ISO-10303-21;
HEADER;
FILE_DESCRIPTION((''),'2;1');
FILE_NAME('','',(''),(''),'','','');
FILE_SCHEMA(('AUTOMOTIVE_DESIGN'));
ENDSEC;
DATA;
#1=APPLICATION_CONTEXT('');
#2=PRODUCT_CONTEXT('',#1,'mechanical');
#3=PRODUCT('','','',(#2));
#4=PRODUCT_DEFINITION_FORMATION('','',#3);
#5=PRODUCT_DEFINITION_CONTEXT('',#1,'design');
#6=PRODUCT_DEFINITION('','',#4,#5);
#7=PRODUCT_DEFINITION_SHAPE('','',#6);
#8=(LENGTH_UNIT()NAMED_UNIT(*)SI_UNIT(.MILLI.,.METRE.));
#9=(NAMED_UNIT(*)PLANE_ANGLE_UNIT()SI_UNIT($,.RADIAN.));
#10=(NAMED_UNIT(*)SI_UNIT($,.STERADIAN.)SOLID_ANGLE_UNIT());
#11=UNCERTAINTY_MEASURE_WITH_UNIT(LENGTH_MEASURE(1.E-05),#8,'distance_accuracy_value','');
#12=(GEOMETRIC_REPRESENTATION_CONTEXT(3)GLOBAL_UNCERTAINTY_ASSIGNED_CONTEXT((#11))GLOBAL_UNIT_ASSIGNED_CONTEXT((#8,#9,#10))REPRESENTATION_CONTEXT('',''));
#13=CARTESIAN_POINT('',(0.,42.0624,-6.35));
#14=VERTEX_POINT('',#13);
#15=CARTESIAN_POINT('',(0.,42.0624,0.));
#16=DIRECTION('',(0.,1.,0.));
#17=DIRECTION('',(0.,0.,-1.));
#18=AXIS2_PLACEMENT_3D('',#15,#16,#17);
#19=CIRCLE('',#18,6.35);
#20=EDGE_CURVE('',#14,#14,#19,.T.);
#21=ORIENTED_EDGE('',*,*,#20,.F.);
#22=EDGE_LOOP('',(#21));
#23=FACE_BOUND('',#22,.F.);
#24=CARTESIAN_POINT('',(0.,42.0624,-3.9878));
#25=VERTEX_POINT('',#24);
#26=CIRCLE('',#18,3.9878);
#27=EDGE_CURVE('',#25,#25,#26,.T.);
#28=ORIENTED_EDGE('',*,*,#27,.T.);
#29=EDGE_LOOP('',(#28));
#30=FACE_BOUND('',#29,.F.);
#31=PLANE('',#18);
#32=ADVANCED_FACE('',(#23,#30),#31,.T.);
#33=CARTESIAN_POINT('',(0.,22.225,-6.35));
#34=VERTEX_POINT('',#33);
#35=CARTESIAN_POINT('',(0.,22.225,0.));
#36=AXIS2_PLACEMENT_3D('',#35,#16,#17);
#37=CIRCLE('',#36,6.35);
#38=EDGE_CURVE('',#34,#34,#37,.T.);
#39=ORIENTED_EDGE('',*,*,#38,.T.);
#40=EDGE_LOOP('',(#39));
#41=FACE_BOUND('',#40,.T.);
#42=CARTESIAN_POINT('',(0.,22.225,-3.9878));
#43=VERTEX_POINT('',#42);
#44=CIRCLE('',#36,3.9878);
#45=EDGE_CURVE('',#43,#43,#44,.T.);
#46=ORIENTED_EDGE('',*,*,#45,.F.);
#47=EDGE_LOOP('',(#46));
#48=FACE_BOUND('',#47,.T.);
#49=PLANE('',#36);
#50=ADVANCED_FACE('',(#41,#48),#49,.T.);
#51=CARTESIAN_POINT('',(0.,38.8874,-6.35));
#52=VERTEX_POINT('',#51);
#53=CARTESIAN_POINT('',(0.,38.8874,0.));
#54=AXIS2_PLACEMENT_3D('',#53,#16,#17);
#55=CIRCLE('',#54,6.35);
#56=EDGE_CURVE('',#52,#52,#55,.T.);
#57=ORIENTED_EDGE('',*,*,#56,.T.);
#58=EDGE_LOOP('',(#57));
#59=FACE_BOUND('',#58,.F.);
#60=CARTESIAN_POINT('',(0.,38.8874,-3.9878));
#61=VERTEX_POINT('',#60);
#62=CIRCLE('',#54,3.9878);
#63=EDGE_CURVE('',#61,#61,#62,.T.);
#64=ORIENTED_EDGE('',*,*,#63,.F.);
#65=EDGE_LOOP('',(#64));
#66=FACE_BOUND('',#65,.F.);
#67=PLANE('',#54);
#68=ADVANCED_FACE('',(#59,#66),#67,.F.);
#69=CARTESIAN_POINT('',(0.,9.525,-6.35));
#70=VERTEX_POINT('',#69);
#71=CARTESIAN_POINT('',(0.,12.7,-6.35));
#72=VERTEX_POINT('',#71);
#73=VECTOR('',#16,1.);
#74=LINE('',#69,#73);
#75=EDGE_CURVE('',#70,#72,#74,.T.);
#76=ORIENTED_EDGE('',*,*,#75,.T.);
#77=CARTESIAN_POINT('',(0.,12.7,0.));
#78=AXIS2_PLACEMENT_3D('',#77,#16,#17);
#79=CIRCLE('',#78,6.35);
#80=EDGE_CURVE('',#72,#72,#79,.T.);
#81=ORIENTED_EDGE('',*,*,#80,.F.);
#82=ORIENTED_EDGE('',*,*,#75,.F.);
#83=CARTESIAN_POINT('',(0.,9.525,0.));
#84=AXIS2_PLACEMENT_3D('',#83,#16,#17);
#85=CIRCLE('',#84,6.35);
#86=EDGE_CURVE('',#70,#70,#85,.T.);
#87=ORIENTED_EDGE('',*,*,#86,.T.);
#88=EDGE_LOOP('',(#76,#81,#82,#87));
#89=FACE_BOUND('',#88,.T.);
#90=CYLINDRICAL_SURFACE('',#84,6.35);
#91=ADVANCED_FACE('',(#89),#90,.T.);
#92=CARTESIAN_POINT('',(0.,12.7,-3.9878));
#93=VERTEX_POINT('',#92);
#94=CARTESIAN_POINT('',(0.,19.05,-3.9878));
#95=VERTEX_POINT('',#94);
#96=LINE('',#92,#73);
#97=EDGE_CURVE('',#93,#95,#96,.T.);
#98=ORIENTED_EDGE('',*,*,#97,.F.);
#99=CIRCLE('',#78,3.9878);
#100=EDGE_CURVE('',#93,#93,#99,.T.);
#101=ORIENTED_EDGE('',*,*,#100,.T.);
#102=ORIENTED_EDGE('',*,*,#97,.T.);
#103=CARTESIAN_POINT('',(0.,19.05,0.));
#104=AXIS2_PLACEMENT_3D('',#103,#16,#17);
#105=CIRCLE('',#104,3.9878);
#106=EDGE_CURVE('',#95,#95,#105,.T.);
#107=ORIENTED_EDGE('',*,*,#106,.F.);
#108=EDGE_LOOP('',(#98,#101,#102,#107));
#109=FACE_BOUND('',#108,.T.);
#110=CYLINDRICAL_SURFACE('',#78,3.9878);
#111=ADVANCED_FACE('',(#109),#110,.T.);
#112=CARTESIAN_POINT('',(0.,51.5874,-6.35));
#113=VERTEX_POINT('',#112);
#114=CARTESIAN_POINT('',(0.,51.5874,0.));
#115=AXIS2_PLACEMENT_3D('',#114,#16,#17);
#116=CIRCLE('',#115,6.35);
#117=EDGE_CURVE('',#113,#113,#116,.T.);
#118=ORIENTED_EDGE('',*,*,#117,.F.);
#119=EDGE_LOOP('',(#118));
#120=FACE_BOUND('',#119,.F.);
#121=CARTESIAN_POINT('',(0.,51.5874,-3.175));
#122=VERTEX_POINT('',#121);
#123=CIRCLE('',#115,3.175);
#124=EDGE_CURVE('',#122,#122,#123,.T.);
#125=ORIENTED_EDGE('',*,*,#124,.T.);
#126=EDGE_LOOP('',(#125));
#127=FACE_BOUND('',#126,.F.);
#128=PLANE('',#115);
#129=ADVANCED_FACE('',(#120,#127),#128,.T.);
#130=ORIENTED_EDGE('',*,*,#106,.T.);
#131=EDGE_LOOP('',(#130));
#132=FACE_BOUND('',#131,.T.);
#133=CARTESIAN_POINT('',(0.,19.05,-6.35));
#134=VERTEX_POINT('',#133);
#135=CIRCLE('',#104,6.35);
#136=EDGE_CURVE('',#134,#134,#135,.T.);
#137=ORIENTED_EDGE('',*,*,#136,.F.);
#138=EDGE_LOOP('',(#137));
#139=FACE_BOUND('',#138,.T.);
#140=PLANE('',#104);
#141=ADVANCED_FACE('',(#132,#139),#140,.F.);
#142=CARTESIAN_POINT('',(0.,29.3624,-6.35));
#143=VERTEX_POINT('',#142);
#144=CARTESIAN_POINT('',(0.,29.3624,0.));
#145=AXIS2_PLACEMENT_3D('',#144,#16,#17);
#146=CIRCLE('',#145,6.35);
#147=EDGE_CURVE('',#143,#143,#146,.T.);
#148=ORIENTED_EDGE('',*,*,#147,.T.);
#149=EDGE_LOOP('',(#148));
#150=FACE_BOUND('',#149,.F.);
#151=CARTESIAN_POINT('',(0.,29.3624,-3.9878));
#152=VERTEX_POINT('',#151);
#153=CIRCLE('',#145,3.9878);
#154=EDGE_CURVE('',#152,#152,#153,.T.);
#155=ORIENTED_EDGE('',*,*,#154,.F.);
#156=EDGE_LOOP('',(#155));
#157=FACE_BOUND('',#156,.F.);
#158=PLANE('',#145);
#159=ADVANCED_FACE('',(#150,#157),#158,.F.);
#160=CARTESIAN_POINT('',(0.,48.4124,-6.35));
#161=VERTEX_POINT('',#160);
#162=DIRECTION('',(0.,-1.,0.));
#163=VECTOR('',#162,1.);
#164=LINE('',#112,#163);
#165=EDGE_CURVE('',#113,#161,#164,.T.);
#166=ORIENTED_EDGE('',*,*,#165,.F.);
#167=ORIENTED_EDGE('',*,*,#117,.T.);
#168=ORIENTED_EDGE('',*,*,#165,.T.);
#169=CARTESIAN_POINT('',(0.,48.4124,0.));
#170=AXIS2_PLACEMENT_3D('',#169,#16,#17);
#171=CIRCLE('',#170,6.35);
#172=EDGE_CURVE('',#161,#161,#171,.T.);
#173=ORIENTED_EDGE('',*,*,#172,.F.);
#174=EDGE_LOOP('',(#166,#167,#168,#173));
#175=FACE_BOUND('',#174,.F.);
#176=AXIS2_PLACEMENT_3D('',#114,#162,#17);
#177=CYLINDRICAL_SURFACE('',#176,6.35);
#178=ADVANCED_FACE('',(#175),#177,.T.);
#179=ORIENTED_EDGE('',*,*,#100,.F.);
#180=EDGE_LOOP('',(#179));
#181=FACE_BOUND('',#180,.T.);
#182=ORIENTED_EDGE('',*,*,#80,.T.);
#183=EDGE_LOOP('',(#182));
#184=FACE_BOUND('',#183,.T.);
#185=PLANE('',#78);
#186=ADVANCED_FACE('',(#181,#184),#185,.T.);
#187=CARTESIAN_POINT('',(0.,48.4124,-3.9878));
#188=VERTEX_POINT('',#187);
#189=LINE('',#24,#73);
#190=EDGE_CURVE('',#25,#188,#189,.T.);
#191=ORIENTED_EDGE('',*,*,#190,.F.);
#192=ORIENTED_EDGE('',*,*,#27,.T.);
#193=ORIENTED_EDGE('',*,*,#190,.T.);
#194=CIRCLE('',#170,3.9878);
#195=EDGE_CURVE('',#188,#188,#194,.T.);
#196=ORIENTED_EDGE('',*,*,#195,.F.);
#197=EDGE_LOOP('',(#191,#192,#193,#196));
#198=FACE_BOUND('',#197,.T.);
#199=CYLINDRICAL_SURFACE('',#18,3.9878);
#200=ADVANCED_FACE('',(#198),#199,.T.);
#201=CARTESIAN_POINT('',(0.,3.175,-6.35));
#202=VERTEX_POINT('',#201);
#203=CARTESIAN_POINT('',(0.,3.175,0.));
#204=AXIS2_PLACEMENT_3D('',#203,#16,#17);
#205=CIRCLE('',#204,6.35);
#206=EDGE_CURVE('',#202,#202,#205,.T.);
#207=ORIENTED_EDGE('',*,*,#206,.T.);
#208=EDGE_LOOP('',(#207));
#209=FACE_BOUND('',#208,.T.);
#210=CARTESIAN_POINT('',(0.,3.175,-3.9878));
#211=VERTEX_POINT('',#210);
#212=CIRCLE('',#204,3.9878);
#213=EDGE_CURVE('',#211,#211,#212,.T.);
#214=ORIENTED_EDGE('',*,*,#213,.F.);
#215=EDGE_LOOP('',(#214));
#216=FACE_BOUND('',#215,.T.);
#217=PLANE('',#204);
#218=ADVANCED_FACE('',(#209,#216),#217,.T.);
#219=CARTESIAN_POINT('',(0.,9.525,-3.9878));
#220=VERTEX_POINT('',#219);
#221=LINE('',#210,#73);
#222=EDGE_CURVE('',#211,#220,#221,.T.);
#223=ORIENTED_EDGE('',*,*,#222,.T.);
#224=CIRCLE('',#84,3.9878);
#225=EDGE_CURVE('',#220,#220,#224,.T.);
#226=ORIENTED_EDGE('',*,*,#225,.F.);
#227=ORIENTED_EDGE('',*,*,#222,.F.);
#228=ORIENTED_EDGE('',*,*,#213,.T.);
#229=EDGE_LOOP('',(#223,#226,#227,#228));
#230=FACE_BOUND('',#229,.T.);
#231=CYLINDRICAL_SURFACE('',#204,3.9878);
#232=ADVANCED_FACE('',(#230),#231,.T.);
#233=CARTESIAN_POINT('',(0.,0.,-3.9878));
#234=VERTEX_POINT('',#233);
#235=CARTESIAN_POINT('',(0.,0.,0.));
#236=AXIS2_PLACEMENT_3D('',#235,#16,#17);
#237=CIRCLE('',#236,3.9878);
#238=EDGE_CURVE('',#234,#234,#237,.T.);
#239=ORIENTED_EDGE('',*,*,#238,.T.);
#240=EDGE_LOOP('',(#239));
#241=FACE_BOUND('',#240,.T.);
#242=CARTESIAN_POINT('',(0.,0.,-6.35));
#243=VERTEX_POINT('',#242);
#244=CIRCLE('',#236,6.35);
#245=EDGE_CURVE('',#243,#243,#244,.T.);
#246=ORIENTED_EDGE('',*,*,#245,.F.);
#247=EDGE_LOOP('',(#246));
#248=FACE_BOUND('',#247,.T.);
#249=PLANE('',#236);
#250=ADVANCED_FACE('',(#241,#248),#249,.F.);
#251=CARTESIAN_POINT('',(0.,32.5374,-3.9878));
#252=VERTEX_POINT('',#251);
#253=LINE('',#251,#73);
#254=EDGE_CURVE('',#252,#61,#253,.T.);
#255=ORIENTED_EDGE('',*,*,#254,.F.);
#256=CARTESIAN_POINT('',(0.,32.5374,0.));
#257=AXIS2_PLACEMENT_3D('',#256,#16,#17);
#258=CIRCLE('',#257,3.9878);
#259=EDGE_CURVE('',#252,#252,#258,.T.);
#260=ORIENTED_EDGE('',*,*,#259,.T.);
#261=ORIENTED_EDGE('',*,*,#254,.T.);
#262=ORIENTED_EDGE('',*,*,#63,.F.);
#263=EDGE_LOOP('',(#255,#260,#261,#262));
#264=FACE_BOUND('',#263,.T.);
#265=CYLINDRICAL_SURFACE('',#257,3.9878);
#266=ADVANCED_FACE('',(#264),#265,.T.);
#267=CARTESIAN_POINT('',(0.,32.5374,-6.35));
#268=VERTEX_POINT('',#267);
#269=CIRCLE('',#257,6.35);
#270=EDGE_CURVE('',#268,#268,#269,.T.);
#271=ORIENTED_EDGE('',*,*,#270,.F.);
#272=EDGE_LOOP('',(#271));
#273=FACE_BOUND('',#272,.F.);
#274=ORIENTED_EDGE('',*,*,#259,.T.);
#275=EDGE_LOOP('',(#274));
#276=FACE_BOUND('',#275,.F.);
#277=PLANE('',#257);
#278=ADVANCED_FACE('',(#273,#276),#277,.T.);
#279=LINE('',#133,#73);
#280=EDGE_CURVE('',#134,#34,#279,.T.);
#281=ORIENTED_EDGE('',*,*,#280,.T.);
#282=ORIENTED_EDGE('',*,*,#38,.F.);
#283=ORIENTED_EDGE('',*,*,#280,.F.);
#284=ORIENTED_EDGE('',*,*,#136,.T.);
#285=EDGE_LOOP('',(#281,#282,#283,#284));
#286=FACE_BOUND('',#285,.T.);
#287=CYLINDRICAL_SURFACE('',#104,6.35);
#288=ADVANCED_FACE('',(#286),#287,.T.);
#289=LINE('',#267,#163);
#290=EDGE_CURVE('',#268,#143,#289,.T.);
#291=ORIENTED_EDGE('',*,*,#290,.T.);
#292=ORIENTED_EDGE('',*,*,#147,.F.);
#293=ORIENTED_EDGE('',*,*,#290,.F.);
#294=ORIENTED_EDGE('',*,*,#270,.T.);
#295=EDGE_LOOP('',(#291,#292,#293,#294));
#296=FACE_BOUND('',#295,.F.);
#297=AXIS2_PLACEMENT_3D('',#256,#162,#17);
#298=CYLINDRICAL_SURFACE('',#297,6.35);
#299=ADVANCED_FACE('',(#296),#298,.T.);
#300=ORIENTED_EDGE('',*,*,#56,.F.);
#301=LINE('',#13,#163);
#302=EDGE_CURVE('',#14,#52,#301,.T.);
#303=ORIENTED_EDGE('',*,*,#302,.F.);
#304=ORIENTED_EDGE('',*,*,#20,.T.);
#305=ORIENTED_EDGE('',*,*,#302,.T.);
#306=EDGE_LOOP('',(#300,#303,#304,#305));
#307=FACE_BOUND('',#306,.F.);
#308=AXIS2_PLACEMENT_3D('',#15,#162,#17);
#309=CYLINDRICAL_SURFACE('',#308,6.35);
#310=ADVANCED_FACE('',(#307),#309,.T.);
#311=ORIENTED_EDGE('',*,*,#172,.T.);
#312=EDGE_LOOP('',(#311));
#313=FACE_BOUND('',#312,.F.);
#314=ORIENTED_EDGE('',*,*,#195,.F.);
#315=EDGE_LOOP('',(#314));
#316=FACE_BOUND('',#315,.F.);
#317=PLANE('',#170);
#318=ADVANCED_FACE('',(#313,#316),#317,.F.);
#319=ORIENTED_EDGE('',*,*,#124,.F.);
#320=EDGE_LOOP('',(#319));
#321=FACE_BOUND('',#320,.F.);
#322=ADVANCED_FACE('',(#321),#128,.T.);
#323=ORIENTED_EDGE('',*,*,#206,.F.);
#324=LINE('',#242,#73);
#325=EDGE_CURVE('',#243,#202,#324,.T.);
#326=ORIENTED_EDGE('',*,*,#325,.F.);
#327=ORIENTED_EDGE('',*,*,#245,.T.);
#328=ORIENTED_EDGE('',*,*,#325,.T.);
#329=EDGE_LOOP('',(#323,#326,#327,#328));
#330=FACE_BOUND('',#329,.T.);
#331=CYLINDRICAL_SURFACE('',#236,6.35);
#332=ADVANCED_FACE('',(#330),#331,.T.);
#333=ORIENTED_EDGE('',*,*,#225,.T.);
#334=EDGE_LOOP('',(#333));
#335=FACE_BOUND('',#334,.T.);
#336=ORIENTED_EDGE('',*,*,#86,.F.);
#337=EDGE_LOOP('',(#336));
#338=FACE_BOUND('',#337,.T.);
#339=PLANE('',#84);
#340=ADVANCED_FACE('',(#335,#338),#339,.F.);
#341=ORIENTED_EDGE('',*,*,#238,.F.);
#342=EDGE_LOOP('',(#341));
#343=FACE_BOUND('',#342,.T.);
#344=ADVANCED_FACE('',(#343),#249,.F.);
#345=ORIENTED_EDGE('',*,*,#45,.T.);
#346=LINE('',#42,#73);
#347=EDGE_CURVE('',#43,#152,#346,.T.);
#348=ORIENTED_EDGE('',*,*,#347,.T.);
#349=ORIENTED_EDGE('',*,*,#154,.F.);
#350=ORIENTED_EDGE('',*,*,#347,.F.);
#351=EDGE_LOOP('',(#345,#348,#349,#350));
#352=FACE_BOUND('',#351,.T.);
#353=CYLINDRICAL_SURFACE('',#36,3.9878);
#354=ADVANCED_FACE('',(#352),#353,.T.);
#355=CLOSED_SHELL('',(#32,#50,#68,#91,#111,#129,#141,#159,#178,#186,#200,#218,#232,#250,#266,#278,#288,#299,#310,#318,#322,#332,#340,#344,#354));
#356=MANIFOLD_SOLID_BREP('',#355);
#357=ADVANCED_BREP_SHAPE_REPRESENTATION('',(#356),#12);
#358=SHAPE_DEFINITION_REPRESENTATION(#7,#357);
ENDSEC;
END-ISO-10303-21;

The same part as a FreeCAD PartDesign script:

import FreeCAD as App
import Part
import Sketcher
Q = App.Units.Quantity


def add_polygon(sketch, points):
    """Adds a closed chain of lines whose ends are joined by coincident constraints."""
    first, n = sketch.GeometryCount, len(points)
    for a, b in zip(points, points[1:] + points[:1]):
        sketch.addGeometry(Part.LineSegment(App.Vector(*a, 0), App.Vector(*b, 0)), False)
    for i in range(n):
        sketch.addConstraint(Sketcher.Constraint("Coincident", first + i, 2, first + (i + 1) % n, 1))

doc = App.newDocument("Part")
body = doc.addObject("PartDesign::Body", "Body")

# Sketch on YZ plane
sketch1 = doc.addObject("Sketcher::SketchObject", "Sketch")
body.addObject(sketch1)
sketch1.AttachmentSupport = (doc.YZ_Plane, [""])
sketch1.MapMode = "FlatFace"
add_polygon(sketch1, [(51.5874, 0), (0, 0), (0, -6.35), (3.175, -6.35), (3.175, -3.9878), (9.525, -3.9878), (9.525, -6.35), (12.7, -6.35), (12.7, -3.9878), (19.05, -3.9878), (19.05, -6.35), (22.225, -6.35), (22.225, -3.9878), (29.3624, -3.9878), (29.3624, -6.35), (32.5374, -6.35), (32.5374, -3.9878), (38.8874, -3.9878), (38.8874, -6.35), (42.0624, -6.35), (42.0624, -3.9878), (48.4124, -3.9878), (48.4124, -6.35), (51.5874, -6.35)])  # lines 0-23
sketch1.addConstraint([
    Sketcher.Constraint("Horizontal", 0),
    Sketcher.Constraint("Vertical", 1),
    Sketcher.Constraint("Horizontal", 2),
    Sketcher.Constraint("Vertical", 3),
    Sketcher.Constraint("Horizontal", 4),
    Sketcher.Constraint("Vertical", 5),
    Sketcher.Constraint("Horizontal", 6),
    Sketcher.Constraint("Vertical", 7),
    Sketcher.Constraint("Horizontal", 8),
    Sketcher.Constraint("Vertical", 9),
    Sketcher.Constraint("Horizontal", 10),
    Sketcher.Constraint("Vertical", 11),
    Sketcher.Constraint("Horizontal", 12),
    Sketcher.Constraint("Vertical", 13),
    Sketcher.Constraint("Horizontal", 14),
    Sketcher.Constraint("Vertical", 15),
    Sketcher.Constraint("Horizontal", 16),
    Sketcher.Constraint("Vertical", 17),
    Sketcher.Constraint("Horizontal", 18),
    Sketcher.Constraint("Vertical", 19),
    Sketcher.Constraint("Horizontal", 20),
    Sketcher.Constraint("Vertical", 21),
    Sketcher.Constraint("Horizontal", 22),
    Sketcher.Constraint("Vertical", 23),
    Sketcher.Constraint("Coincident", 0, 2, -1, 1),
    Sketcher.Constraint("Horizontal", 2, 2, 5, 2),
    Sketcher.Constraint("Horizontal", 4, 2, 7, 2),
    Sketcher.Constraint("Horizontal", 6, 2, 9, 2),
    Sketcher.Constraint("Horizontal", 8, 2, 11, 2),
    Sketcher.Constraint("Horizontal", 10, 2, 13, 2),
    Sketcher.Constraint("Horizontal", 12, 2, 15, 2),
    Sketcher.Constraint("Horizontal", 14, 2, 17, 2),
    Sketcher.Constraint("Horizontal", 16, 2, 19, 2),
    Sketcher.Constraint("Horizontal", 18, 2, 21, 2),
    Sketcher.Constraint("Equal", 2, 6),
    Sketcher.Constraint("Equal", 4, 8),
    Sketcher.Constraint("Equal", 6, 10),
    Sketcher.Constraint("Equal", 10, 14),
    Sketcher.Constraint("Equal", 8, 16),
    Sketcher.Constraint("Equal", 14, 18),
    Sketcher.Constraint("Equal", 16, 20),
    Sketcher.Constraint("Equal", 18, 22),
    Sketcher.Constraint("Equal", 20, 1),
    Sketcher.Constraint("DistanceX", 2, 1, 2, 2, Q("0.125 in")),
    Sketcher.Constraint("DistanceY", 3, 1, 3, 2, Q("0.093 in")),
    Sketcher.Constraint("DistanceY", 3, 2, -1, 1, Q("0.157 in")),
    Sketcher.Constraint("DistanceX", 0, 2, 0, 1, Q("2.031 in")),
])
revolution = doc.addObject("PartDesign::Revolution", "Revolution")
body.addObject(revolution)
revolution.Profile = sketch1
revolution.ReferenceAxis = (sketch1, ["H_Axis"])
revolution.Angle = 360

doc.recompute()
